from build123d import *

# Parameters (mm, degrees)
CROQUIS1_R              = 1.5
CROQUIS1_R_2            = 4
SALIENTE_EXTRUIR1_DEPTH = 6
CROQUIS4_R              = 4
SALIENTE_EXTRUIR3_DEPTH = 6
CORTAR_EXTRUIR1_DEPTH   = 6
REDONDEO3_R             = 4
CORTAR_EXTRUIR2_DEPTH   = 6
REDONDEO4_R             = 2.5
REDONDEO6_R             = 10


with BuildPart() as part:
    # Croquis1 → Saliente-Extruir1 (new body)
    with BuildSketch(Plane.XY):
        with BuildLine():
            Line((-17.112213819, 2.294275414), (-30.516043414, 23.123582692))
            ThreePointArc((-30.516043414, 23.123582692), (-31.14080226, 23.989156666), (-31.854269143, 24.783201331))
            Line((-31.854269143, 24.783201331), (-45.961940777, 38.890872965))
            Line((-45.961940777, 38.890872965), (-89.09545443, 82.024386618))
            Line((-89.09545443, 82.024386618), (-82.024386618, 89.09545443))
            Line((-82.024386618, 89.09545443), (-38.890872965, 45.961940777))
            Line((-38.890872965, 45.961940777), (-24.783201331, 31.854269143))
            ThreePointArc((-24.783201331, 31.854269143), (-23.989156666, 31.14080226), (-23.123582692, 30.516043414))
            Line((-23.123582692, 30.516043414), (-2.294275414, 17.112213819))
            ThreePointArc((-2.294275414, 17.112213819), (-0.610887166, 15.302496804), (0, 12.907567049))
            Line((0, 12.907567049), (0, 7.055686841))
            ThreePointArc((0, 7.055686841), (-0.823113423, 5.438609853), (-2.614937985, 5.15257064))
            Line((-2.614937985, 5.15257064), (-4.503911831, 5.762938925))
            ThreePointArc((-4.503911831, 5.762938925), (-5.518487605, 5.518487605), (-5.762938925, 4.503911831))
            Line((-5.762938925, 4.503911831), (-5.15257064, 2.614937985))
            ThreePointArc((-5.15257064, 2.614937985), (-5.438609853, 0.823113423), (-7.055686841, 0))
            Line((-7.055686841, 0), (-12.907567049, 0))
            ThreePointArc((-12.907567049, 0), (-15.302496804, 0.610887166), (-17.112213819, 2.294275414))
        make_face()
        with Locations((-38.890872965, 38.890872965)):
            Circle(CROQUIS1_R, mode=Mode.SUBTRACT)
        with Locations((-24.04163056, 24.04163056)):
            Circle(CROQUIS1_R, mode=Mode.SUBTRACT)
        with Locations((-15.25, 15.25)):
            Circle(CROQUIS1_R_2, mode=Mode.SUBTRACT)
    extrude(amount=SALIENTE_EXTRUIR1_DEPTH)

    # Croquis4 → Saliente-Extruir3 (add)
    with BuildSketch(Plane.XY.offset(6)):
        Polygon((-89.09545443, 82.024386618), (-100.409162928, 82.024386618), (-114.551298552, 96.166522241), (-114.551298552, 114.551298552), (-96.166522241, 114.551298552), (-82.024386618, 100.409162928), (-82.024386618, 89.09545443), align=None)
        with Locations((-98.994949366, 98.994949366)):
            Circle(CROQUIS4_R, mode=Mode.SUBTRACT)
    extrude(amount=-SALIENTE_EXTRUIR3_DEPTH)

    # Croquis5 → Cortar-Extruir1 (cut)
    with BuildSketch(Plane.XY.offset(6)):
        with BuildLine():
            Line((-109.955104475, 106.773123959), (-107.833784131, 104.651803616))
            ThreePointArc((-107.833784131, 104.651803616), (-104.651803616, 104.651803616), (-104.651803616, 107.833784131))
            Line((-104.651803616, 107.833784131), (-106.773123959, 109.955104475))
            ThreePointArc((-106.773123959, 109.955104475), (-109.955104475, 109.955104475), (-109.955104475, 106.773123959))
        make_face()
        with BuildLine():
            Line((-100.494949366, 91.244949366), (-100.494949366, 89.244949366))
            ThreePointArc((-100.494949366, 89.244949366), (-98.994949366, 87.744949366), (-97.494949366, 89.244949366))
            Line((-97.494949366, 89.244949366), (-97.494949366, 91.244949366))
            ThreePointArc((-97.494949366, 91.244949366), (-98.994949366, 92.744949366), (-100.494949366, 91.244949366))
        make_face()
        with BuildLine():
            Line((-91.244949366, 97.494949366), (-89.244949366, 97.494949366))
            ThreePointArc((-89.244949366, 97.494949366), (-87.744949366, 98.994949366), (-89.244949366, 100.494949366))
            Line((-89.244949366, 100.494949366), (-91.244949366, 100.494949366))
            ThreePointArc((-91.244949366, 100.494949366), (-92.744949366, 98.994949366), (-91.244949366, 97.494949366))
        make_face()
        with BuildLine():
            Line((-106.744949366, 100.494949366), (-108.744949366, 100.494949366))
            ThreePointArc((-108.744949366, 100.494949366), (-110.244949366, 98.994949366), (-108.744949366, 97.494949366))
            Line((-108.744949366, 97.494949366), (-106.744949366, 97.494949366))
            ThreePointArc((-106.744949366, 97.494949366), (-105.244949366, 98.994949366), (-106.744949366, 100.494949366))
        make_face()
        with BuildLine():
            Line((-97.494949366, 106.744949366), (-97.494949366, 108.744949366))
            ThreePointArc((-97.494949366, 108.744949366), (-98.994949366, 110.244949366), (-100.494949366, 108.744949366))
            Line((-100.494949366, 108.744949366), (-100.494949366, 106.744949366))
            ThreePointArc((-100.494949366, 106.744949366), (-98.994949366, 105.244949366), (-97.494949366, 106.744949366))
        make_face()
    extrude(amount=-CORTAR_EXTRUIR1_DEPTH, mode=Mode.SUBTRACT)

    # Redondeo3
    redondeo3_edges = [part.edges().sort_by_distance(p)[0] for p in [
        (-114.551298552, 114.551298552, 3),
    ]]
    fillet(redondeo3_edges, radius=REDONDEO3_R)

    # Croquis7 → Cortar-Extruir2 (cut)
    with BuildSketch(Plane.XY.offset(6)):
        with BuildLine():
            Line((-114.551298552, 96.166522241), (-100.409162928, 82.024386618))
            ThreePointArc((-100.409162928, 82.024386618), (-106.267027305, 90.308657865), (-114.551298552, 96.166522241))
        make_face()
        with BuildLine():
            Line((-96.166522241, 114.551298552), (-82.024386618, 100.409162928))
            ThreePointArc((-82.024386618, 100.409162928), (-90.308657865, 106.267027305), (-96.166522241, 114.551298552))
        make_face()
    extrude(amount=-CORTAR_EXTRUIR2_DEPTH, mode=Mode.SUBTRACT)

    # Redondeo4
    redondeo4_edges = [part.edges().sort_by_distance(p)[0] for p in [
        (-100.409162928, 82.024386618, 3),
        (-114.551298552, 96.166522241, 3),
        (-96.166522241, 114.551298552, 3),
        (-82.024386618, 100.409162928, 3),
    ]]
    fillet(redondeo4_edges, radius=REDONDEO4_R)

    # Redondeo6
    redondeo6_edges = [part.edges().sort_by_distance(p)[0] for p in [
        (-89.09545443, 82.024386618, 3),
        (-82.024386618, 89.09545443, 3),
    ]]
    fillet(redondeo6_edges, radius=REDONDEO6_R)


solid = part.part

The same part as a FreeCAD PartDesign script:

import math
import FreeCAD as App
import Part
import Sketcher
Q = App.Units.Quantity


def edges_at(feature, points):
    """Names of the edges that pass closest to the given points."""
    edges = feature.Shape.Edges
    near = lambda p: min(range(len(edges)), key=lambda i: edges[i].distToShape(Part.Vertex(*p))[0])
    return sorted({f"Edge{near(p) + 1}" for p in points})

doc = App.newDocument("Part")
body = doc.addObject("PartDesign::Body", "Body")

# Sketch on XY plane
sketch1 = doc.addObject("Sketcher::SketchObject", "Sketch")
body.addObject(sketch1)
sketch1.AttachmentSupport = (doc.XY_Plane, [""])
sketch1.MapMode = "FlatFace"
sketch1.addGeometry([
    Part.LineSegment(App.Vector(-30.5, 23.1, 0), App.Vector(-17.1, 2.3, 0)),  # 0
    Part.ArcOfCircle(Part.Circle(App.Vector(-12.9, 5, 0), App.Vector(0, 0, 1), 5), math.radians(-147), math.radians(-90)),  # 1
    Part.LineSegment(App.Vector(-12.9, 0, 0), App.Vector(-7.1, 0, 0)),  # 2
    Part.ArcOfCircle(Part.Circle(App.Vector(-7.1, 2, 0), App.Vector(0, 0, 1), 2), math.radians(-90), math.radians(18)),  # 3
    Part.LineSegment(App.Vector(-5.2, 2.6, 0), App.Vector(-5.8, 4.5, 0)),  # 4
    Part.ArcOfCircle(Part.Circle(App.Vector(-4.8, 4.8, 0), App.Vector(0, 0, 1), 1), math.radians(72), math.radians(198)),  # 5
    Part.LineSegment(App.Vector(-4.5, 5.8, 0), App.Vector(-2.6, 5.2, 0)),  # 6
    Part.ArcOfCircle(Part.Circle(App.Vector(-2, 7.1, 0), App.Vector(0, 0, 1), 2), math.radians(-108), math.radians(0)),  # 7
    Part.LineSegment(App.Vector(0, 7.1, 0), App.Vector(0, 12.9, 0)),  # 8
    Part.ArcOfCircle(Part.Circle(App.Vector(-5, 12.9, 0), App.Vector(0, 0, 1), 5), math.radians(0), math.radians(57)),  # 9
    Part.LineSegment(App.Vector(-2.3, 17.1, 0), App.Vector(-23.1, 30.5, 0)),  # 10
    Part.ArcOfCircle(Part.Circle(App.Vector(-17.7, 38.9, 0), App.Vector(0, 0, 1), 10), math.radians(-135), math.radians(-122.76)),  # 11
    Part.LineSegment(App.Vector(-24.8, 31.9, 0), App.Vector(-82, 89.1, 0)),  # 12
    Part.LineSegment(App.Vector(-82, 89.1, 0), App.Vector(-89.1, 82, 0)),  # 13
    Part.LineSegment(App.Vector(-89.1, 82, 0), App.Vector(-31.9, 24.8, 0)),  # 14
    Part.ArcOfCircle(Part.Circle(App.Vector(-38.9, 17.7, 0), App.Vector(0, 0, 1), 10), math.radians(32.76), math.radians(45)),  # 15
    Part.Circle(App.Vector(-15.2, 15.2, 0), App.Vector(0, 0, 1), 4),  # 16
    Part.Circle(App.Vector(-24, 24, 0), App.Vector(0, 0, 1), 1.5),  # 17
    Part.Circle(App.Vector(-38.9, 38.9, 0), App.Vector(0, 0, 1), 1.5),  # 18
], False)
sketch1.addConstraint([
    Sketcher.Constraint("Tangent", 0, 2, 1, 1),
    Sketcher.Constraint("Tangent", 1, 2, 2, 1),
    Sketcher.Constraint("Tangent", 2, 2, 3, 1),
    Sketcher.Constraint("Tangent", 3, 2, 4, 1),
    Sketcher.Constraint("Tangent", 4, 2, 5, 2),
    Sketcher.Constraint("Tangent", 5, 1, 6, 1),
    Sketcher.Constraint("Tangent", 6, 2, 7, 1),
    Sketcher.Constraint("Tangent", 7, 2, 8, 1),
    Sketcher.Constraint("Tangent", 8, 2, 9, 1),
    Sketcher.Constraint("Tangent", 9, 2, 10, 1),
    Sketcher.Constraint("Tangent", 10, 2, 11, 2),
    Sketcher.Constraint("Tangent", 11, 1, 12, 1),
    Sketcher.Constraint("Coincident", 12, 2, 13, 1),
    Sketcher.Constraint("Coincident", 13, 2, 14, 1),
    Sketcher.Constraint("Tangent", 14, 2, 15, 2),
    Sketcher.Constraint("Tangent", 15, 1, 0, 1),
    Sketcher.Constraint("Horizontal", 2),
    Sketcher.Constraint("Vertical", 8),
    Sketcher.Constraint("Equal", 3, 7),
    Sketcher.Constraint("Equal", 1, 9),
    Sketcher.Constraint("Equal", 11, 15),
    Sketcher.Constraint("Equal", 17, 18),
    Sketcher.Constraint("PointOnObject", 1, 2, -1),
    Sketcher.Constraint("PointOnObject", 7, 2, -2),
    Sketcher.Constraint("Perpendicular", 12, 13),
    Sketcher.Constraint("Perpendicular", 13, 14),
    Sketcher.Constraint("Equal", 2, 8),
    Sketcher.Constraint("Equal", 4, 6),
    Sketcher.Constraint("Equal", 0, 10),
    Sketcher.Constraint("Equal", 12, 14),
    Sketcher.Constraint("Diameter", 16, Q("8 mm")),
    Sketcher.Constraint("Diameter", 17, Q("3 mm")),
    Sketcher.Constraint("Radius", 1, Q("5 mm")),
    Sketcher.Constraint("Radius", 3, Q("2 mm")),
    Sketcher.Constraint("Radius", 5, Q("1 mm")),
    Sketcher.Constraint("Radius", 11, Q("10 mm")),
    Sketcher.Constraint("Angle", 12, Q("135 deg")),
    Sketcher.Constraint("Distance", 13, Q("10 mm")),
    Sketcher.Constraint("DistanceX", 16, 3, -1, 1, Q("15.25 mm")),
    Sketcher.Constraint("DistanceY", -1, 1, 16, 3, Q("15.25 mm")),
    Sketcher.Constraint("DistanceY", 3, 2, 5, 1, Q("3.148001 mm")),
    Sketcher.Constraint("DistanceX", 4, 2, 6, 2, Q("3.148001 mm")),
    Sketcher.Constraint("DistanceX", 2, 1, 2, 2, Q("5.85188 mm")),
    Sketcher.Constraint("DistanceX", 11, 1, -1, 1, Q("24.783201 mm")),
    Sketcher.Constraint("Distance", 0, Q("24.76939 mm")),
    Sketcher.Constraint("Distance", 12, Q("80.951261 mm")),
    Sketcher.Constraint("DistanceX", 17, 3, -1, 1, Q("24.041631 mm")),
    Sketcher.Constraint("DistanceY", -1, 1, 17, 3, Q("24.041631 mm")),
    Sketcher.Constraint("DistanceX", 18, 3, 11, 3, Q("21.178739 mm")),
    Sketcher.Constraint("DistanceY", 15, 3, 18, 3, Q("21.178739 mm")),
])
pad1 = doc.addObject("PartDesign::Pad", "Pad")
body.addObject(pad1)
pad1.Profile = sketch1
pad1.Length = 6

# Sketch on XY plane
sketch2 = doc.addObject("Sketcher::SketchObject", "Sketch001")
body.addObject(sketch2)
sketch2.AttachmentSupport = (doc.XY_Plane, [""])
sketch2.MapMode = "FlatFace"
sketch2.AttachmentOffset = App.Placement(App.Vector(0, 0, 6), App.Rotation())
sketch2.addGeometry([
    Part.LineSegment(App.Vector(-100.4, 82, 0), App.Vector(-89.1, 82, 0)),  # 0
    Part.LineSegment(App.Vector(-89.1, 82, 0), App.Vector(-82, 89.1, 0)),  # 1
    Part.LineSegment(App.Vector(-82, 89.1, 0), App.Vector(-82, 100.4, 0)),  # 2
    Part.LineSegment(App.Vector(-82, 100.4, 0), App.Vector(-96.2, 114.6, 0)),  # 3
    Part.LineSegment(App.Vector(-96.2, 114.6, 0), App.Vector(-114.6, 114.6, 0)),  # 4
    Part.LineSegment(App.Vector(-114.6, 114.6, 0), App.Vector(-114.6, 96.2, 0)),  # 5
    Part.LineSegment(App.Vector(-114.6, 96.2, 0), App.Vector(-100.4, 82, 0)),  # 6
    Part.Circle(App.Vector(-99, 99, 0), App.Vector(0, 0, 1), 4),  # 7
], False)
sketch2.addConstraint([
    Sketcher.Constraint("Coincident", 0, 2, 1, 1),
    Sketcher.Constraint("Coincident", 1, 2, 2, 1),
    Sketcher.Constraint("Coincident", 2, 2, 3, 1),
    Sketcher.Constraint("Coincident", 3, 2, 4, 1),
    Sketcher.Constraint("Coincident", 4, 2, 5, 1),
    Sketcher.Constraint("Coincident", 5, 2, 6, 1),
    Sketcher.Constraint("Coincident", 6, 2, 0, 1),
    Sketcher.Constraint("Horizontal", 0),
    Sketcher.Constraint("Vertical", 2),
    Sketcher.Constraint("Horizontal", 4),
    Sketcher.Constraint("Vertical", 5),
    Sketcher.Constraint("Perpendicular", 1, 3),
    Sketcher.Constraint("Parallel", 3, 6),
    Sketcher.Constraint("Equal", 0, 2),
    Sketcher.Constraint("Equal", 4, 5),
    Sketcher.Constraint("Equal", 3, 6),
    Sketcher.Constraint("Diameter", 7, Q("8 mm")),
    Sketcher.Constraint("Distance", 1, Q("10 mm")),
    Sketcher.Constraint("Distance", 3, Q("20 mm")),
    Sketcher.Constraint("DistanceX", 0, 1, 0, 2, Q("11.313708 mm")),
    Sketcher.Constraint("DistanceY", -1, 1, 3, 2, Q("114.551299 mm")),
    Sketcher.Constraint("DistanceX", 4, 2, -1, 1, Q("114.551299 mm")),
    Sketcher.Constraint("DistanceX", 7, 3, -1, 1, Q("98.994949 mm")),
    Sketcher.Constraint("DistanceY", -1, 1, 7, 3, Q("98.994949 mm")),
])
pad2 = doc.addObject("PartDesign::Pad", "Pad001")
body.addObject(pad2)
pad2.Profile = sketch2
pad2.Length = 6
pad2.Reversed = True

# Sketch on XY plane
sketch3 = doc.addObject("Sketcher::SketchObject", "Sketch002")
body.addObject(sketch3)
sketch3.AttachmentSupport = (doc.XY_Plane, [""])
sketch3.MapMode = "FlatFace"
sketch3.AttachmentOffset = App.Placement(App.Vector(0, 0, 6), App.Rotation())
sketch3.addGeometry([
    Part.LineSegment(App.Vector(-110, 106.8, 0), App.Vector(-107.8, 104.7, 0)),  # 0
    Part.ArcOfCircle(Part.Circle(App.Vector(-106.2, 106.2, 0), App.Vector(0, 0, 1), 2.2), math.radians(-135), math.radians(45)),  # 1
    Part.LineSegment(App.Vector(-104.7, 107.8, 0), App.Vector(-106.8, 110, 0)),  # 2
    Part.ArcOfCircle(Part.Circle(App.Vector(-108.4, 108.4, 0), App.Vector(0, 0, 1), 2.2), math.radians(45), math.radians(225)),  # 3
    Part.LineSegment(App.Vector(-100.5, 91.2, 0), App.Vector(-100.5, 89.2, 0)),  # 4
    Part.ArcOfCircle(Part.Circle(App.Vector(-99, 89.2, 0), App.Vector(0, 0, 1), 1.5), math.radians(180), math.radians(360)),  # 5
    Part.LineSegment(App.Vector(-97.5, 89.2, 0), App.Vector(-97.5, 91.2, 0)),  # 6
    Part.ArcOfCircle(Part.Circle(App.Vector(-99, 91.2, 0), App.Vector(0, 0, 1), 1.5), math.radians(0), math.radians(180)),  # 7
    Part.LineSegment(App.Vector(-91.2, 97.5, 0), App.Vector(-89.2, 97.5, 0)),  # 8
    Part.ArcOfCircle(Part.Circle(App.Vector(-89.2, 99, 0), App.Vector(0, 0, 1), 1.5), math.radians(-90), math.radians(90)),  # 9
    Part.LineSegment(App.Vector(-89.2, 100.5, 0), App.Vector(-91.2, 100.5, 0)),  # 10
    Part.ArcOfCircle(Part.Circle(App.Vector(-91.2, 99, 0), App.Vector(0, 0, 1), 1.5), math.radians(90), math.radians(270)),  # 11
    Part.LineSegment(App.Vector(-106.7, 100.5, 0), App.Vector(-108.7, 100.5, 0)),  # 12
    Part.ArcOfCircle(Part.Circle(App.Vector(-108.7, 99, 0), App.Vector(0, 0, 1), 1.5), math.radians(90), math.radians(270)),  # 13
    Part.LineSegment(App.Vector(-108.7, 97.5, 0), App.Vector(-106.7, 97.5, 0)),  # 14
    Part.ArcOfCircle(Part.Circle(App.Vector(-106.7, 99, 0), App.Vector(0, 0, 1), 1.5), math.radians(-90), math.radians(90)),  # 15
    Part.LineSegment(App.Vector(-97.5, 106.7, 0), App.Vector(-97.5, 108.7, 0)),  # 16
    Part.ArcOfCircle(Part.Circle(App.Vector(-99, 108.7, 0), App.Vector(0, 0, 1), 1.5), math.radians(0), math.radians(180)),  # 17
    Part.LineSegment(App.Vector(-100.5, 108.7, 0), App.Vector(-100.5, 106.7, 0)),  # 18
    Part.ArcOfCircle(Part.Circle(App.Vector(-99, 106.7, 0), App.Vector(0, 0, 1), 1.5), math.radians(180), math.radians(360)),  # 19
], False)
sketch3.addConstraint([
    Sketcher.Constraint("Tangent", 0, 2, 1, 1),
    Sketcher.Constraint("Tangent", 1, 2, 2, 1),
    Sketcher.Constraint("Tangent", 2, 2, 3, 1),
    Sketcher.Constraint("Tangent", 3, 2, 0, 1),
    Sketcher.Constraint("Tangent", 4, 2, 5, 1),
    Sketcher.Constraint("Tangent", 5, 2, 6, 1),
    Sketcher.Constraint("Tangent", 6, 2, 7, 1),
    Sketcher.Constraint("Tangent", 7, 2, 4, 1),
    Sketcher.Constraint("Tangent", 8, 2, 9, 1),
    Sketcher.Constraint("Tangent", 9, 2, 10, 1),
    Sketcher.Constraint("Tangent", 10, 2, 11, 1),
    Sketcher.Constraint("Tangent", 11, 2, 8, 1),
    Sketcher.Constraint("Tangent", 12, 2, 13, 1),
    Sketcher.Constraint("Tangent", 13, 2, 14, 1),
    Sketcher.Constraint("Tangent", 14, 2, 15, 1),
    Sketcher.Constraint("Tangent", 15, 2, 12, 1),
    Sketcher.Constraint("Tangent", 16, 2, 17, 1),
    Sketcher.Constraint("Tangent", 17, 2, 18, 1),
    Sketcher.Constraint("Tangent", 18, 2, 19, 1),
    Sketcher.Constraint("Tangent", 19, 2, 16, 1),
    Sketcher.Constraint("Vertical", 4),
    Sketcher.Constraint("Vertical", 6),
    Sketcher.Constraint("Horizontal", 8),
    Sketcher.Constraint("Horizontal", 10),
    Sketcher.Constraint("Horizontal", 12),
    Sketcher.Constraint("Horizontal", 14),
    Sketcher.Constraint("Vertical", 16),
    Sketcher.Constraint("Vertical", 18),
    Sketcher.Constraint("Equal", 1, 3),
    Sketcher.Constraint("Equal", 7, 9),
    Sketcher.Constraint("Equal", 11, 13),
    Sketcher.Constraint("Equal", 15, 17),
    Sketcher.Constraint("Horizontal", 11, 3, 13, 3),
    Sketcher.Constraint("Vertical", 7, 3, 17, 3),
    Sketcher.Constraint("Equal", 10, 12),
    Sketcher.Constraint("Equal", 14, 4),
    Sketcher.Constraint("Equal", 6, 16),
    Sketcher.Constraint("Radius", 5, Q("1.5 mm")),
    Sketcher.Constraint("DistanceX", 8, 1, 8, 2, Q("2 mm")),
    Sketcher.Constraint("Angle", 0, Q("-45 deg")),
    Sketcher.Constraint("Radius", 1, Q("2.25 mm")),
    Sketcher.Constraint("Distance", 0, Q("3 mm")),
    Sketcher.Constraint("DistanceX", 13, 3, 11, 3, Q("17.5 mm")),
    Sketcher.Constraint("DistanceX", 7, 3, 9, 3, Q("9.75 mm")),
    Sketcher.Constraint("DistanceY", 7, 3, 9, 3, Q("7.75 mm")),
    Sketcher.Constraint("DistanceY", 11, 3, 17, 3, Q("9.75 mm")),
    Sketcher.Constraint("DistanceX", 5, 3, -1, 1, Q("98.994949 mm")),
    Sketcher.Constraint("DistanceY", -1, 1, 5, 3, Q("89.244949 mm")),
    Sketcher.Constraint("DistanceX", 1, 3, -1, 1, Q("106.242794 mm")),
    Sketcher.Constraint("DistanceY", -1, 1, 1, 3, Q("106.242794 mm")),
])
pocket1 = doc.addObject("PartDesign::Pocket", "Pocket")
body.addObject(pocket1)
pocket1.Profile = sketch3
pocket1.Length = 6
doc.recompute()

fillet = doc.addObject("PartDesign::Fillet", "Fillet")
body.addObject(fillet)
fillet.Base = (pocket1, edges_at(pocket1, [(-114.551, 114.551, 3)]))
fillet.Radius = 4

# Sketch on XY plane
sketch4 = doc.addObject("Sketcher::SketchObject", "Sketch003")
body.addObject(sketch4)
sketch4.AttachmentSupport = (doc.XY_Plane, [""])
sketch4.MapMode = "FlatFace"
sketch4.AttachmentOffset = App.Placement(App.Vector(0, 0, 6), App.Rotation())
sketch4.addGeometry([
    Part.LineSegment(App.Vector(-115, 96, 0), App.Vector(-100, 82, 0)),
    Part.ArcOfCircle(Part.Circle(App.Vector(-127, 69, 0), App.Vector(0, 0, 1), 30), math.radians(26), math.radians(64)),
    Part.LineSegment(App.Vector(-82, 100, 0), App.Vector(-96, 115, 0)),
    Part.ArcOfCircle(Part.Circle(App.Vector(-69, 127, 0), App.Vector(0, 0, 1), 30), math.radians(-154), math.radians(-116)),
], False)
sketch4.addConstraint([
    Sketcher.Constraint("Coincident", 0, 1, 1, 2),
    Sketcher.Constraint("Coincident", 1, 1, 0, 2),
    Sketcher.Constraint("Coincident", 2, 1, 3, 2),
    Sketcher.Constraint("Coincident", 3, 1, 2, 2),
    Sketcher.Constraint("Equal", 1, 3),
    Sketcher.Constraint("Parallel", 0, 2),
    Sketcher.Constraint("Equal", 0, 2),
    Sketcher.Constraint("Radius", 1, Q("30 mm")),
    Sketcher.Constraint("Angle", 0, Q("-45 deg")),
    Sketcher.Constraint("Distance", 0, Q("20 mm")),
    Sketcher.Constraint("DistanceX", 0, 1, -1, 1, Q("114.551299 mm")),
    Sketcher.Constraint("DistanceY", -1, 1, 3, 1, Q("114.551299 mm")),
    Sketcher.Constraint("DistanceY", 0, 1, 3, 3, Q("31.313709 mm")),
    Sketcher.Constraint("DistanceX", 1, 1, 3, 3, Q("31.313709 mm")),
])
pocket2 = doc.addObject("PartDesign::Pocket", "Pocket001")
body.addObject(pocket2)
pocket2.Profile = sketch4
pocket2.Length = 6
doc.recompute()

fillet2 = doc.addObject("PartDesign::Fillet", "Fillet001")
body.addObject(fillet2)
fillet2.Base = (pocket2, edges_at(pocket2, [
    (-100.409, 82.024, 3),
    (-114.551, 96.167, 3),
    (-96.167, 114.551, 3),
    (-82.024, 100.409, 3),
]))
fillet2.Radius = 2.5
doc.recompute()

fillet3 = doc.addObject("PartDesign::Fillet", "Fillet002")
body.addObject(fillet3)
fillet3.Base = (fillet2, edges_at(fillet2, [(-89.095, 82.024, 3), (-82.024, 89.095, 3)]))
fillet3.Radius = 10

doc.recompute()
